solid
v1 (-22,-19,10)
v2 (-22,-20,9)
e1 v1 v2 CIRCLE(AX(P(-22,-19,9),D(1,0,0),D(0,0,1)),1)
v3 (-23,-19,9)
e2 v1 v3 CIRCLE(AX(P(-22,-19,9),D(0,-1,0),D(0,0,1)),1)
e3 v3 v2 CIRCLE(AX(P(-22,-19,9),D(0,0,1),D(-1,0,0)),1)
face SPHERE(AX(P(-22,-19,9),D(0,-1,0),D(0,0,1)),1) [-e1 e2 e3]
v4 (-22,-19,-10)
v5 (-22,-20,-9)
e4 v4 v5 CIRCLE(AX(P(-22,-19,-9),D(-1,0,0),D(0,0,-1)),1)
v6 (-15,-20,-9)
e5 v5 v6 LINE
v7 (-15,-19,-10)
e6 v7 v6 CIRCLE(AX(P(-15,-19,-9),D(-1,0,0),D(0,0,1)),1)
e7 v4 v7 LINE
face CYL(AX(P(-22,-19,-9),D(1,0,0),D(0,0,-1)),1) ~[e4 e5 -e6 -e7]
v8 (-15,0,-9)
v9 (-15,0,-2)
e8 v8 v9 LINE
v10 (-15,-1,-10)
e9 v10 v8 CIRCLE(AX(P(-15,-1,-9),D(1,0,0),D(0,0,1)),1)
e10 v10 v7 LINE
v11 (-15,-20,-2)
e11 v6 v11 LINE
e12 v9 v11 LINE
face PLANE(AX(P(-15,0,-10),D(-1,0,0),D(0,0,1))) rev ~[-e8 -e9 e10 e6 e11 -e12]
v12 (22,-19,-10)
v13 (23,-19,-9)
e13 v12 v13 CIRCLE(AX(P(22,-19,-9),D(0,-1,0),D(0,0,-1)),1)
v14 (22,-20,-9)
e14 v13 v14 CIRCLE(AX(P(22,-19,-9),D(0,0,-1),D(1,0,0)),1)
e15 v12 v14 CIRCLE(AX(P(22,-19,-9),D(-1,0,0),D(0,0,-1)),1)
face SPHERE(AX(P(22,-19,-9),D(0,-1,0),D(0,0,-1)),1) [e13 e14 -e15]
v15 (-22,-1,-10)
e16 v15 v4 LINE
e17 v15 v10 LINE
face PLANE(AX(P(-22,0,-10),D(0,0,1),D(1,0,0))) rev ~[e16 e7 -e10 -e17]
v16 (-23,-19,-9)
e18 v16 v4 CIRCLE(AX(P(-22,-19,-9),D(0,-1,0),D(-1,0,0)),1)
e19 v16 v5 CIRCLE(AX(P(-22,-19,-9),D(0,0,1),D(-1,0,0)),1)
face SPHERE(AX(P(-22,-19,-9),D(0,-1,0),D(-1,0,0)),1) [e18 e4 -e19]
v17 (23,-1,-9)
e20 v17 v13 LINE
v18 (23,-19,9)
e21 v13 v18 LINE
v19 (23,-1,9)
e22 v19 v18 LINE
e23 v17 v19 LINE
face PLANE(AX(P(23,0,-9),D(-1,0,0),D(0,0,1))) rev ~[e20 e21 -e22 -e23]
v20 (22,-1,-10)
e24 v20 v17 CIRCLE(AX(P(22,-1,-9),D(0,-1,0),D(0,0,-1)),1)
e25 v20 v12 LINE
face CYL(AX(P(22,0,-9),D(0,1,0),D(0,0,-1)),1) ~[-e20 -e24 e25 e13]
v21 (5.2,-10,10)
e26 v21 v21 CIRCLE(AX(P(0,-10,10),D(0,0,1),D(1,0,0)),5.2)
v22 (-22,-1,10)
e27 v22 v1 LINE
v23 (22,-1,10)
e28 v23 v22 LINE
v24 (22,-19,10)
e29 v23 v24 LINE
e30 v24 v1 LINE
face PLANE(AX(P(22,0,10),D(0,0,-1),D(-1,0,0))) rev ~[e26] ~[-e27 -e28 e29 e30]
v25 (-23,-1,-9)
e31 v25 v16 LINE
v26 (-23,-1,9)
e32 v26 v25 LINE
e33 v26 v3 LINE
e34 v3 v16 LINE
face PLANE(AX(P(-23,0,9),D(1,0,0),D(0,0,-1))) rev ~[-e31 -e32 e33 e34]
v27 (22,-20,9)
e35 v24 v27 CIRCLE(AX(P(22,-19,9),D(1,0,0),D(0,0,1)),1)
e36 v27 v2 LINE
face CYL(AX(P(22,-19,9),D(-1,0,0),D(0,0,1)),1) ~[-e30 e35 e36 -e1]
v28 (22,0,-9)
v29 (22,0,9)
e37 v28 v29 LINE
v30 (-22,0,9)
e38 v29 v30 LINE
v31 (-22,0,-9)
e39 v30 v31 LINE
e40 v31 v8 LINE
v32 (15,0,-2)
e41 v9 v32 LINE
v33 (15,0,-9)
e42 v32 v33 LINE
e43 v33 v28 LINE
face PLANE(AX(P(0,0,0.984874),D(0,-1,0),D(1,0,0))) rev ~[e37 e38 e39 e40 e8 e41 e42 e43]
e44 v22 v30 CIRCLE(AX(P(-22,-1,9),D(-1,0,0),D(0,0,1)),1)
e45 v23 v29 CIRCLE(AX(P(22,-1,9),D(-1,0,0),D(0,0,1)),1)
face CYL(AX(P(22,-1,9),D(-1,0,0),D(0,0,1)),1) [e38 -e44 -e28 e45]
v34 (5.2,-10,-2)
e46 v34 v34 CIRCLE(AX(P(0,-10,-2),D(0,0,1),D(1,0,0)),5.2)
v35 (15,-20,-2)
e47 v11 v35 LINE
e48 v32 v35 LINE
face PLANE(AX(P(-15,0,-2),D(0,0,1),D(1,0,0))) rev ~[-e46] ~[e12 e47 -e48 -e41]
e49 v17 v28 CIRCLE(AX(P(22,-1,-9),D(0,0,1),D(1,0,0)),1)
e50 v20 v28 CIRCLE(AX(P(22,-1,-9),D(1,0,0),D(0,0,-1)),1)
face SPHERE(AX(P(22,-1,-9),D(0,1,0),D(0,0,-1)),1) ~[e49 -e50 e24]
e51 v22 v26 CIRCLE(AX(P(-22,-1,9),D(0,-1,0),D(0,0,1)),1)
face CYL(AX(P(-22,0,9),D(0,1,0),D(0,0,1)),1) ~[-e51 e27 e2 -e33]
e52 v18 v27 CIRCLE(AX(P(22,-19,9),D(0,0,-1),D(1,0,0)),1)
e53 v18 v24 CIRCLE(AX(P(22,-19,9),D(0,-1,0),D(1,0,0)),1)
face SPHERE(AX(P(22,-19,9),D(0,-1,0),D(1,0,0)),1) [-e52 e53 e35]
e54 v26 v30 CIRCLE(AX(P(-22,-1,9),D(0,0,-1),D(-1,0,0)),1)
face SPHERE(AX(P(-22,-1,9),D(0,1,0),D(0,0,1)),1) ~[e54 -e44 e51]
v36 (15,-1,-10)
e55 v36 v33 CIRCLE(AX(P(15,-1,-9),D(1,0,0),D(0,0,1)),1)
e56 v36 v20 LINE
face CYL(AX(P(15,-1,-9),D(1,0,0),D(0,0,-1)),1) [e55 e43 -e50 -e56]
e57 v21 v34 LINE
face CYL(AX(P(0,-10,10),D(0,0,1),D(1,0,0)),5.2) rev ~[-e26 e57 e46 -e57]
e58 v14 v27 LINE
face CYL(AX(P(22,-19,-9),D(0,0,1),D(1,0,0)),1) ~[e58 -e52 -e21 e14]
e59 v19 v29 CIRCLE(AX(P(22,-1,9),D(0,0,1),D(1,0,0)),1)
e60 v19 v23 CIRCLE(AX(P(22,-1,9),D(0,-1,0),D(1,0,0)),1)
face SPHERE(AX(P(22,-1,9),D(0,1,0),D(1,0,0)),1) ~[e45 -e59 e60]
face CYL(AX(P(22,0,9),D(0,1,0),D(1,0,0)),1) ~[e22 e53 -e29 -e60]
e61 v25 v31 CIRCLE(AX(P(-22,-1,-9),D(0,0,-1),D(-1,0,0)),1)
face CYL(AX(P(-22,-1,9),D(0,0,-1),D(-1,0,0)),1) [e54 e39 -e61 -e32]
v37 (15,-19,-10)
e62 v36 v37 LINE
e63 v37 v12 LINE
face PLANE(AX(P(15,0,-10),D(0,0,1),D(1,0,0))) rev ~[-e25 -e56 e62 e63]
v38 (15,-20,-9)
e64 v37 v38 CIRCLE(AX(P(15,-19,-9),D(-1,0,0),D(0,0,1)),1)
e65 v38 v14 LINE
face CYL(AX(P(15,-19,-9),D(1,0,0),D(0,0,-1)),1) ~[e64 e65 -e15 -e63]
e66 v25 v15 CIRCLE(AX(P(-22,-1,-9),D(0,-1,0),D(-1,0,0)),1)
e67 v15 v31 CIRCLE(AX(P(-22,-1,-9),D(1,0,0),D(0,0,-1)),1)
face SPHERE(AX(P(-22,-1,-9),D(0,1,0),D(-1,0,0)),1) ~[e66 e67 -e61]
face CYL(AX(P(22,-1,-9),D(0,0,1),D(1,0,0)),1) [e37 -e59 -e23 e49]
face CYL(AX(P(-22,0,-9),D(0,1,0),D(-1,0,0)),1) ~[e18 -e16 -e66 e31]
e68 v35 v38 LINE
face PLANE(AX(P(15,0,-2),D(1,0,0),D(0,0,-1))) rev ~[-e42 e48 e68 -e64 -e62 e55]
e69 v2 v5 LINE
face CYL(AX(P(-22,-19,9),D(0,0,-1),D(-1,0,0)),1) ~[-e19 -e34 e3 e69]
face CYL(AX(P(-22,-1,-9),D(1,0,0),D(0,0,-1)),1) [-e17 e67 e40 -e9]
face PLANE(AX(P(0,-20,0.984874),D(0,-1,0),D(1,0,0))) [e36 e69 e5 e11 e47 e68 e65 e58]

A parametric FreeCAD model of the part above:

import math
import FreeCAD as App
import Part
import Sketcher
from FreeCAD import Vector
Q = App.Units.Quantity


def edges_at(feature, points):
    """Names of the edges that pass closest to the given points."""
    edges = feature.Shape.Edges
    near = lambda p: min(range(len(edges)), key=lambda i: edges[i].distToShape(Part.Vertex(*p))[0])
    return sorted({f"Edge{near(p) + 1}" for p in points})

doc = App.newDocument("Part")
body = doc.addObject("PartDesign::Body", "Body")

# Sketch on XZ plane
sketch1 = body.newObject("Sketcher::SketchObject", "Sketch")
sketch1.AttachmentSupport = (doc.getObject("XZ_Plane"), [""])
sketch1.MapMode = "FlatFace"
sketch1.addGeometry([
    Part.LineSegment(Vector(22, 10, 0), Vector(-22, 10, 0)),  # 0
    Part.ArcOfCircle(Part.Circle(Vector(-22, 9, 0), Vector(0, 0, 1), 1), math.radians(90), math.radians(180)),  # 1
    Part.LineSegment(Vector(-23, 9, 0), Vector(-23, -9, 0)),  # 2
    Part.ArcOfCircle(Part.Circle(Vector(-22, -9, 0), Vector(0, 0, 1), 1), math.radians(180), math.radians(270)),  # 3
    Part.LineSegment(Vector(-22, -10, 0), Vector(-15, -10, 0)),  # 4
    Part.LineSegment(Vector(-15, -10, 0), Vector(-15, -2, 0)),  # 5
    Part.LineSegment(Vector(-15, -2, 0), Vector(15, -2, 0)),  # 6
    Part.LineSegment(Vector(15, -2, 0), Vector(15, -10, 0)),  # 7
    Part.LineSegment(Vector(15, -10, 0), Vector(22, -10, 0)),  # 8
    Part.ArcOfCircle(Part.Circle(Vector(22, -9, 0), Vector(0, 0, 1), 1), math.radians(-90), math.radians(0)),  # 9
    Part.LineSegment(Vector(23, -9, 0), Vector(23, 9, 0)),  # 10
    Part.ArcOfCircle(Part.Circle(Vector(22, 9, 0), Vector(0, 0, 1), 1), math.radians(0), math.radians(90)),  # 11
], False)
sketch1.addConstraint([
    Sketcher.Constraint("Tangent", 0, 2, 1, 1),
    Sketcher.Constraint("Tangent", 1, 2, 2, 1),
    Sketcher.Constraint("Tangent", 2, 2, 3, 1),
    Sketcher.Constraint("Tangent", 3, 2, 4, 1),
    Sketcher.Constraint("Coincident", 4, 2, 5, 1),
    Sketcher.Constraint("Coincident", 5, 2, 6, 1),
    Sketcher.Constraint("Coincident", 6, 2, 7, 1),
    Sketcher.Constraint("Coincident", 7, 2, 8, 1),
    Sketcher.Constraint("Tangent", 8, 2, 9, 1),
    Sketcher.Constraint("Tangent", 9, 2, 10, 1),
    Sketcher.Constraint("Tangent", 10, 2, 11, 1),
    Sketcher.Constraint("Tangent", 11, 2, 0, 1),
    Sketcher.Constraint("Horizontal", 0),
    Sketcher.Constraint("Vertical", 2),
    Sketcher.Constraint("Horizontal", 4),
    Sketcher.Constraint("Vertical", 5),
    Sketcher.Constraint("Horizontal", 6),
    Sketcher.Constraint("Vertical", 7),
    Sketcher.Constraint("Horizontal", 8),
    Sketcher.Constraint("Vertical", 10),
    Sketcher.Constraint("Equal", 1, 3),
    Sketcher.Constraint("Equal", 3, 9),
    Sketcher.Constraint("Equal", 9, 11),
    Sketcher.Constraint("Symmetric", 1, 3, 9, 3, -1, 1),
    Sketcher.Constraint("Symmetric", 4, 2, 7, 2, -2),
    Sketcher.Constraint("Radius", 1, Q("1 mm")),
    Sketcher.Constraint("DistanceX", 0, 2, 0, 1, Q("44 mm")),
    Sketcher.Constraint("DistanceX", 4, 1, 4, 2, Q("7 mm")),
    Sketcher.Constraint("DistanceY", 2, 2, 2, 1, Q("18 mm")),
    Sketcher.Constraint("DistanceY", 5, 1, 5, 2, Q("8 mm")),
])
pad1 = body.newObject("PartDesign::Pad", "Pad")
pad1.Profile = sketch1
pad1.Length = 20

# Sketch on XY plane
sketch2 = body.newObject("Sketcher::SketchObject", "Sketch001")
sketch2.AttachmentSupport = (doc.getObject("XY_Plane"), [""])
sketch2.MapMode = "FlatFace"
sketch2.AttachmentOffset = App.Placement(Vector(0, 0, 10), App.Rotation())
sketch2.addGeometry(Part.Circle(Vector(0, -10, 0), Vector(0, 0, 1), 5), False)
sketch2.addConstraint([
    Sketcher.Constraint("PointOnObject", 0, 3, -2),
    Sketcher.Constraint("Diameter", 0, Q("10.4 mm")),
    Sketcher.Constraint("DistanceY", 0, 3, -1, 1, Q("10 mm")),
])
pocket1 = body.newObject("PartDesign::Pocket", "Pocket")
pocket1.Profile = sketch2
pocket1.Length = 25
doc.recompute()

fillet = body.newObject("PartDesign::Fillet", "Fillet")
fillet.Base = (pocket1, edges_at(pocket1, [
    (0, -20, 10),
    (23, -20, 0),
    (0, 0, 10),
    (23, 0, 0),
]))
fillet.Radius = 1

doc.recompute()
